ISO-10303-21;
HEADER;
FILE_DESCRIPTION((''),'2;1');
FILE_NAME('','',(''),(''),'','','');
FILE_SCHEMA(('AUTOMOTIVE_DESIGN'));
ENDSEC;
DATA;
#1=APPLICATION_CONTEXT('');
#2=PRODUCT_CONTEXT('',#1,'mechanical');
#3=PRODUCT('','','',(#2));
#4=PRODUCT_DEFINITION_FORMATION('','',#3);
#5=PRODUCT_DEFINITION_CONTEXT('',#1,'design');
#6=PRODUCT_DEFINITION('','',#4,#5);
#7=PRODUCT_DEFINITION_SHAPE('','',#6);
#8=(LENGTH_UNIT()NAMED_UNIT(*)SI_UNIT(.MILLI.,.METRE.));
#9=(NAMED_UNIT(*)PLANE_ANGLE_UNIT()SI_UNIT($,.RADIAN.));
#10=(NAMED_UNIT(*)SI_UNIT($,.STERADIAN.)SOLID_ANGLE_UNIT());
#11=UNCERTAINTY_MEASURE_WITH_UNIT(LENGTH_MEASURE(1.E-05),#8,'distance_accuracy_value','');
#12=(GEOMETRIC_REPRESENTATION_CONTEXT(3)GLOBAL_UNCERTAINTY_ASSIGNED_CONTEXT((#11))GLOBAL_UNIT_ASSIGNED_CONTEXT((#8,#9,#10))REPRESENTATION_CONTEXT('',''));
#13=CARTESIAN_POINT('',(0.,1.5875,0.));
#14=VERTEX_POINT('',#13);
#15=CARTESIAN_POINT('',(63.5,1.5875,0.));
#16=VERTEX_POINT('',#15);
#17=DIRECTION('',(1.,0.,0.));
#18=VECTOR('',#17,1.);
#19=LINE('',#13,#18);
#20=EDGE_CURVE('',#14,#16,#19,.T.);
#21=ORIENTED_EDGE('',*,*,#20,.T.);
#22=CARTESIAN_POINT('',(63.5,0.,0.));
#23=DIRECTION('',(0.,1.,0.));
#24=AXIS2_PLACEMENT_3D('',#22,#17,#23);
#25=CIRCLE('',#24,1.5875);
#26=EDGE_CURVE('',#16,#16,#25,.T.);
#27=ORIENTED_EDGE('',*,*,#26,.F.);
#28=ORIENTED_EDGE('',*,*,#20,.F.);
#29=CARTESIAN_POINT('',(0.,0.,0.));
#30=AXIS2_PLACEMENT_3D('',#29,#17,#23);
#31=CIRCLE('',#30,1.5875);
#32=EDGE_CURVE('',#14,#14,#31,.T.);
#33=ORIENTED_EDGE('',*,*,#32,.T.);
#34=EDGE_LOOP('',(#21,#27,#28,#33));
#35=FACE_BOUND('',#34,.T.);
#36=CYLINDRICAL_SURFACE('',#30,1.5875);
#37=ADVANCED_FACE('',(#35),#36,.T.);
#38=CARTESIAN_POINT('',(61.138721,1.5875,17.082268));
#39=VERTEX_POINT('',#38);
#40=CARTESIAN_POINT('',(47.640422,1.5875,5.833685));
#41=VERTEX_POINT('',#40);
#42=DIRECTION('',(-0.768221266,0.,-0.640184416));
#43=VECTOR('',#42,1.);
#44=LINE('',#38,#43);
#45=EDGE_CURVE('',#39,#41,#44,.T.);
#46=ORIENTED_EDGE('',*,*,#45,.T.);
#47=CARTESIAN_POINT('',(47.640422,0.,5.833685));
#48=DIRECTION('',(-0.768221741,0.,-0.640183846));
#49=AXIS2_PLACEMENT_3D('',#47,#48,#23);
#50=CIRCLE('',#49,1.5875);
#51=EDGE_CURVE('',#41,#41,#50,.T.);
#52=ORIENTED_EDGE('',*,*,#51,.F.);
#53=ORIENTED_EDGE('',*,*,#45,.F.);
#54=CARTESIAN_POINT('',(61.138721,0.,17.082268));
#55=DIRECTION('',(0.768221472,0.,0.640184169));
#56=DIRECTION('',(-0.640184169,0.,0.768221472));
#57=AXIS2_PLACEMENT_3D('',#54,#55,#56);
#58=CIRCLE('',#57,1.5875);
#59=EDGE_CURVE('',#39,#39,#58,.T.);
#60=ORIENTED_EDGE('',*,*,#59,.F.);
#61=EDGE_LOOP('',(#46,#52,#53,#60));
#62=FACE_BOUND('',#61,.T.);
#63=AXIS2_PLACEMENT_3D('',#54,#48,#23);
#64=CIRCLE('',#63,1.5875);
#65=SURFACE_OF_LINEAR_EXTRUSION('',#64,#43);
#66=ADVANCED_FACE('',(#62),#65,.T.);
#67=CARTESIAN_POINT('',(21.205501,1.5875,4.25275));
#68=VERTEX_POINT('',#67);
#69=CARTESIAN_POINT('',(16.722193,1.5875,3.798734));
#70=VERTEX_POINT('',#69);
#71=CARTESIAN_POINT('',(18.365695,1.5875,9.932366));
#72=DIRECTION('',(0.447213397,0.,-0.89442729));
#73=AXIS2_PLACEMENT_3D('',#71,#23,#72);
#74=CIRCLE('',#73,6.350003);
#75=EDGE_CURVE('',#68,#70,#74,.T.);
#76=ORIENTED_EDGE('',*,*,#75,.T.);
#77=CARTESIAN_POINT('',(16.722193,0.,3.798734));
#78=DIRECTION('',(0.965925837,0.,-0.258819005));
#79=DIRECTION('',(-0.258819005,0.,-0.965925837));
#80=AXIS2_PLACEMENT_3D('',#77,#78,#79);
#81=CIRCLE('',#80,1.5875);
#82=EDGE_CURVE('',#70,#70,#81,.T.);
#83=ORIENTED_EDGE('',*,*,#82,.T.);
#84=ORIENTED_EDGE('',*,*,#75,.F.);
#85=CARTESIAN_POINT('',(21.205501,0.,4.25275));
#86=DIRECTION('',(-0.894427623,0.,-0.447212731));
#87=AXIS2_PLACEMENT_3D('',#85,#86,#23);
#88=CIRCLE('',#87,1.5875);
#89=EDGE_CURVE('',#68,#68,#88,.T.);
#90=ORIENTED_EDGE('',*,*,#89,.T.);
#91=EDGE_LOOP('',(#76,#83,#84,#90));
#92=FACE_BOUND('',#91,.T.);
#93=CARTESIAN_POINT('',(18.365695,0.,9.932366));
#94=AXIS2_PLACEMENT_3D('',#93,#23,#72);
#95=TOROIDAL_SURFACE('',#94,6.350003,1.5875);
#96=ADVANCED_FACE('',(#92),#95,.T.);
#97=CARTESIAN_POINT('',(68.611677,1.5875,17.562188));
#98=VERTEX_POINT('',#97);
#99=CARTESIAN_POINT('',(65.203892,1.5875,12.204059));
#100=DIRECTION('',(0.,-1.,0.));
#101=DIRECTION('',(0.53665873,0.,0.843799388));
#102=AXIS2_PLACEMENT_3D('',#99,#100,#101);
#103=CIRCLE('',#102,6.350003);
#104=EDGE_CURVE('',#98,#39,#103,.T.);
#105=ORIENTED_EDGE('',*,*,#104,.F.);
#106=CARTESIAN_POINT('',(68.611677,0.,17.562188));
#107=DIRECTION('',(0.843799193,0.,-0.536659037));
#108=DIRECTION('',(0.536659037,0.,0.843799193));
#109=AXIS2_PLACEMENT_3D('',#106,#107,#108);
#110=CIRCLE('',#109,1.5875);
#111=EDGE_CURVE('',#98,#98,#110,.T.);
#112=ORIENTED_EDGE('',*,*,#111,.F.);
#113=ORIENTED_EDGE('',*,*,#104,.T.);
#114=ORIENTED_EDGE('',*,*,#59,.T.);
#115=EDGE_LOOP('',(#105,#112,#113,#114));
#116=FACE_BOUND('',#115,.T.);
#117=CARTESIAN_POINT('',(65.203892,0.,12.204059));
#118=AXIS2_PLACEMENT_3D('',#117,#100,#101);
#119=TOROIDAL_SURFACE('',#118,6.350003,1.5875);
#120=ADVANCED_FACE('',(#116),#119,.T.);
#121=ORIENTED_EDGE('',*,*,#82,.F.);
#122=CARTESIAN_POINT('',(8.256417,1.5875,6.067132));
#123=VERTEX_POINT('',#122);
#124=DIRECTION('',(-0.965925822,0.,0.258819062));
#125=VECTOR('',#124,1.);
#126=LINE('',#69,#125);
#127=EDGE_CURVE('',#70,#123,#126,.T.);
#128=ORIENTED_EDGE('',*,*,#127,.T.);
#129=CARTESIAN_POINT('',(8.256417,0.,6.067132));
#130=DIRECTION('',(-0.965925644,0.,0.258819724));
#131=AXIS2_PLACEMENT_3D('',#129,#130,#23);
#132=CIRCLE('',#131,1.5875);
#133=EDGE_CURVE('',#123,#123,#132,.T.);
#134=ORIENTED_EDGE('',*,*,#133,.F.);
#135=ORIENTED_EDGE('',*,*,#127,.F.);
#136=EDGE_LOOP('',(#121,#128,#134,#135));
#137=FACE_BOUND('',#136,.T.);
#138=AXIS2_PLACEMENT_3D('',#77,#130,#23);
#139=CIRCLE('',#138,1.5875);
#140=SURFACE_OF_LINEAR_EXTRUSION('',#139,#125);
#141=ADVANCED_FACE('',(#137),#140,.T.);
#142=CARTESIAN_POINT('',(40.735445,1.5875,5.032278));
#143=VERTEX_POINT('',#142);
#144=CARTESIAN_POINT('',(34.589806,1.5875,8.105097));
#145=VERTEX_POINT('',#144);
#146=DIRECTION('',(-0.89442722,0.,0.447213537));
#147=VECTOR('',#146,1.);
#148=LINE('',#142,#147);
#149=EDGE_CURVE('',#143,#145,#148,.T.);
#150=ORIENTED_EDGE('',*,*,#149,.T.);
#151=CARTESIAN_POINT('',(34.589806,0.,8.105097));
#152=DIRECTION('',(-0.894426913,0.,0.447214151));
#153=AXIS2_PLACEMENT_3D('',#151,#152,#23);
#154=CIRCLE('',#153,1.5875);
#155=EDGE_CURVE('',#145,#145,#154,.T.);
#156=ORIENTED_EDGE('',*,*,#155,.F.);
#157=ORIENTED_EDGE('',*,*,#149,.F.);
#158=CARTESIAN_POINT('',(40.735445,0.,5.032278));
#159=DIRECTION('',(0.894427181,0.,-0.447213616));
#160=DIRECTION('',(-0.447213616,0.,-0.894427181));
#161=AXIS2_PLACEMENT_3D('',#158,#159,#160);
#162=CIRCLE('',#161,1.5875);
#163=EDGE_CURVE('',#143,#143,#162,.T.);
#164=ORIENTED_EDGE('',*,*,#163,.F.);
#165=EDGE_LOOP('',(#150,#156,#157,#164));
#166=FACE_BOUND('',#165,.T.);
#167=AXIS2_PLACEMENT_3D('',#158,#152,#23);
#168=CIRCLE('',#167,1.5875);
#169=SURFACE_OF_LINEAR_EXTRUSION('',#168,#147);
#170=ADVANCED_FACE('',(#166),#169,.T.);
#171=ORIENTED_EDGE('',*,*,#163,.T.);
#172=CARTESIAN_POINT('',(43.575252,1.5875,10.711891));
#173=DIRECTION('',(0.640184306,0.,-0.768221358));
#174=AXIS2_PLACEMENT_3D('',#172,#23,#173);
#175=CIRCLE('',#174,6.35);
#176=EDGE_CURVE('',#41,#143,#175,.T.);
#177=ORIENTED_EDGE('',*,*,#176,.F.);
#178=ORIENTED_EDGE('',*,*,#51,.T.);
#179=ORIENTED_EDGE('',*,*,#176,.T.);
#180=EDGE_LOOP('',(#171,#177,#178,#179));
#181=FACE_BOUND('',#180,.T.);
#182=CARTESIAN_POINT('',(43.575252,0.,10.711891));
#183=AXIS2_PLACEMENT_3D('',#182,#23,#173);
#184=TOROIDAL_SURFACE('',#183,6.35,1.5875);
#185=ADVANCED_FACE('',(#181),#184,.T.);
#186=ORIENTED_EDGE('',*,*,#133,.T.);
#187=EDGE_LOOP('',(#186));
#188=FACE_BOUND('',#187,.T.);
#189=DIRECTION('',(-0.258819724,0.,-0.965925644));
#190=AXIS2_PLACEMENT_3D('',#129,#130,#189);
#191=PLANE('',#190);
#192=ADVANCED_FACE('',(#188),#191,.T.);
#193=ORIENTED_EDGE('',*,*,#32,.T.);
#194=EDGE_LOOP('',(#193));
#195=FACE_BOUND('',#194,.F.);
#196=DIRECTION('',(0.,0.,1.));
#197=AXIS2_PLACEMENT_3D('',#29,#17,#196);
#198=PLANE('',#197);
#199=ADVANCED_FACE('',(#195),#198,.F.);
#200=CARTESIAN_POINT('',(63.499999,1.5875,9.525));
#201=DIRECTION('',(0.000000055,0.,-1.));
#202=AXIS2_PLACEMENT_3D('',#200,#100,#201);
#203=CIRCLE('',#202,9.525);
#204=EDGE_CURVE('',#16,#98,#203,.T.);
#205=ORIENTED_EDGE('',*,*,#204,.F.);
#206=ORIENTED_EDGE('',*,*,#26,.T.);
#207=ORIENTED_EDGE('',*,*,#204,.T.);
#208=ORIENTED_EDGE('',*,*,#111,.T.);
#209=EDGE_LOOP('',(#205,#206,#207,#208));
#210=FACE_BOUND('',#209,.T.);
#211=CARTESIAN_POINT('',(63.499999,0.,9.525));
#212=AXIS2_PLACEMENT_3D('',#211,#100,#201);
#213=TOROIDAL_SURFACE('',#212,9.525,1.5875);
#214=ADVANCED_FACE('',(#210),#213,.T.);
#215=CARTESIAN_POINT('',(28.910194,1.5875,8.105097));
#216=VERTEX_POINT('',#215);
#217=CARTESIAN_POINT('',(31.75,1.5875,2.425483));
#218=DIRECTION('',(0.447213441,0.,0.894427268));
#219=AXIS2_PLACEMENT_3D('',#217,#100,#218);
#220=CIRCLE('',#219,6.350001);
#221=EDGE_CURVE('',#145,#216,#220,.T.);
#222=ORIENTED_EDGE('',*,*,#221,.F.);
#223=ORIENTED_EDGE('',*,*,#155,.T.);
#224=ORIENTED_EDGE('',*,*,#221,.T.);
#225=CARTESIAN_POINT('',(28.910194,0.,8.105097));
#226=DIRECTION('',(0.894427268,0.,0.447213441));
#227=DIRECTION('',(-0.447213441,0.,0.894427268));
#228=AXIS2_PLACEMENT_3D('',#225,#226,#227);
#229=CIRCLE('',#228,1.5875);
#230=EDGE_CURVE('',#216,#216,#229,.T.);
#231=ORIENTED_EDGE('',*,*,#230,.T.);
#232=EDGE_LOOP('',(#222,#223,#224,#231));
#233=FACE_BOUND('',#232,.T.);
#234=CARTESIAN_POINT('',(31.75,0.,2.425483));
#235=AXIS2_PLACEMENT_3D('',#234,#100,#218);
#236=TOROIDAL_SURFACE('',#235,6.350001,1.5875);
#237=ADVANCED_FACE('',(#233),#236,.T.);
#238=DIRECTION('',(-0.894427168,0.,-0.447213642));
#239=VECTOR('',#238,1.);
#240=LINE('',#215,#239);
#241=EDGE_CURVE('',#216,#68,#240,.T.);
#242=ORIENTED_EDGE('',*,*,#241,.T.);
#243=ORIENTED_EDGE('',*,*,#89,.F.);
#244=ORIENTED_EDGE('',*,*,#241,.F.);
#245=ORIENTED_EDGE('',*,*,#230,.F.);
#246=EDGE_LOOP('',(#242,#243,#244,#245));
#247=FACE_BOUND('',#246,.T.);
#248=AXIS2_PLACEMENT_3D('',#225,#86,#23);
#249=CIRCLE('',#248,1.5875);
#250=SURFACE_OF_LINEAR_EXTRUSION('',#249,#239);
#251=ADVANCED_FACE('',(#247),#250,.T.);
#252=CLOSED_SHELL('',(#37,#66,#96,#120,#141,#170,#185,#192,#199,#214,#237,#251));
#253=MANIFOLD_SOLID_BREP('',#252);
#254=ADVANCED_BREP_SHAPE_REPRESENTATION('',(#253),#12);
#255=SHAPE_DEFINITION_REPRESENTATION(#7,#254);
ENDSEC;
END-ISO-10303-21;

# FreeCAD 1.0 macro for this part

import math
import FreeCAD as App
import Part
import Sketcher

V = App.Vector
Q = App.Units.Quantity

doc = App.newDocument("Part")
body = doc.addObject("PartDesign::Body", "Body")

sketch1 = body.newObject("Sketcher::SketchObject", "Sketch")
sketch1.AttachmentSupport = (doc.getObject("YZ_Plane"), [""])
sketch1.MapMode = "FlatFace"
sketch1.addGeometry(Part.Circle(V(0, 0, 0), V(0, 0, 1), 1.6), False)
sketch1.addConstraint(Sketcher.Constraint("Coincident", 0, 3, -1, 1))
sketch1.addConstraint(Sketcher.Constraint("Diameter", 0, Q("0.125 in")))

sketch2 = body.newObject("Sketcher::SketchObject", "Sketch001")
sketch2.AttachmentSupport = (doc.getObject("XZ_Plane"), [""])
sketch2.MapMode = "FlatFace"
sketch2.addGeometry(Part.LineSegment(V(0, 0, 0), V(63.5, 0, 0)), False)
sketch2.addGeometry(Part.ArcOfCircle(Part.Circle(V(63.5, 9.5, 0), V(0, 0, 1), 9.5), math.radians(-90), math.radians(58)), False)
sketch2.addGeometry(Part.ArcOfCircle(Part.Circle(V(65.2, 12.2, 0), V(0, 0, 1), 6.4), math.radians(58), math.radians(130)), False)
sketch2.addGeometry(Part.LineSegment(V(61.1, 17.1, 0), V(47.6, 5.8, 0)), False)
sketch2.addGeometry(Part.ArcOfCircle(Part.Circle(V(43.6, 10.7, 0), V(0, 0, 1), 6.4), math.radians(-117), math.radians(-50)), False)
sketch2.addGeometry(Part.LineSegment(V(40.7, 5, 0), V(34.6, 8.1, 0)), False)
sketch2.addGeometry(Part.ArcOfCircle(Part.Circle(V(31.8, 2.4, 0), V(0, 0, 1), 6.4), math.radians(63), math.radians(117)), False)
sketch2.addGeometry(Part.LineSegment(V(28.9, 8.1, 0), V(21.2, 4.3, 0)), False)
sketch2.addGeometry(Part.ArcOfCircle(Part.Circle(V(18.4, 9.9, 0), V(0, 0, 1), 6.4), math.radians(-105), math.radians(-63)), False)
sketch2.addGeometry(Part.LineSegment(V(16.7, 3.8, 0), V(8.3, 6.1, 0)), False)
sketch2.addConstraint(Sketcher.Constraint("Tangent", 0, 2, 1, 1))
sketch2.addConstraint(Sketcher.Constraint("Tangent", 1, 2, 2, 1))
sketch2.addConstraint(Sketcher.Constraint("Tangent", 2, 2, 3, 1))
sketch2.addConstraint(Sketcher.Constraint("Tangent", 3, 2, 4, 2))
sketch2.addConstraint(Sketcher.Constraint("Tangent", 4, 1, 5, 1))
sketch2.addConstraint(Sketcher.Constraint("Tangent", 5, 2, 6, 1))
sketch2.addConstraint(Sketcher.Constraint("Tangent", 6, 2, 7, 1))
sketch2.addConstraint(Sketcher.Constraint("Tangent", 7, 2, 8, 2))
sketch2.addConstraint(Sketcher.Constraint("Tangent", 8, 1, 9, 1))
sketch2.addConstraint(Sketcher.Constraint("Horizontal", 0))
sketch2.addConstraint(Sketcher.Constraint("Coincident", 0, 1, -1, 1))
sketch2.addConstraint(Sketcher.Constraint("Equal", 4, 6))
sketch2.addConstraint(Sketcher.Constraint("Equal", 6, 8))
sketch2.addConstraint(Sketcher.Constraint("Horizontal", 5, 2, 6, 2))
sketch2.addConstraint(Sketcher.Constraint("Radius", 2, Q("0.2500001 in")))
sketch2.addConstraint(Sketcher.Constraint("Radius", 4, Q("0.25 in")))
sketch2.addConstraint(Sketcher.Constraint("DistanceX", 0, 1, 0, 2, Q("2.5 in")))
sketch2.addConstraint(Sketcher.Constraint("Angle", 9, Q("164.999999 deg")))
sketch2.addConstraint(Sketcher.Constraint("Radius", 1, Q("0.375 in")))
sketch2.addConstraint(Sketcher.Constraint("DistanceX", -1, 1, 6, 3, Q("1.25 in")))
sketch2.addConstraint(Sketcher.Constraint("DistanceX", -1, 1, 7, 2, Q("21.205501 mm")))
sketch2.addConstraint(Sketcher.Constraint("DistanceX", 3, 2, 2, 2, Q("13.498299 mm")))
sketch2.addConstraint(Sketcher.Constraint("DistanceY", 8, 1, 9, 2, Q("2.268398 mm")))
sketch2.addConstraint(Sketcher.Constraint("Distance", 7, Q("8.614109 mm")))
sketch2.addConstraint(Sketcher.Constraint("DistanceY", -1, 1, 2, 3, Q("12.204059 mm")))
sketch2.addConstraint(Sketcher.Constraint("DistanceX", -1, 1, 4, 3, Q("43.575252 mm")))
doc.recompute()

additivepipe = body.newObject("PartDesign::AdditivePipe", "AdditivePipe")
additivepipe.Profile = sketch1
additivepipe.Spine = (sketch2, ["Edge1", "Edge2", "Edge3", "Edge4", "Edge5", "Edge6", "Edge7", "Edge8", "Edge9", "Edge10"])

doc.recompute()
